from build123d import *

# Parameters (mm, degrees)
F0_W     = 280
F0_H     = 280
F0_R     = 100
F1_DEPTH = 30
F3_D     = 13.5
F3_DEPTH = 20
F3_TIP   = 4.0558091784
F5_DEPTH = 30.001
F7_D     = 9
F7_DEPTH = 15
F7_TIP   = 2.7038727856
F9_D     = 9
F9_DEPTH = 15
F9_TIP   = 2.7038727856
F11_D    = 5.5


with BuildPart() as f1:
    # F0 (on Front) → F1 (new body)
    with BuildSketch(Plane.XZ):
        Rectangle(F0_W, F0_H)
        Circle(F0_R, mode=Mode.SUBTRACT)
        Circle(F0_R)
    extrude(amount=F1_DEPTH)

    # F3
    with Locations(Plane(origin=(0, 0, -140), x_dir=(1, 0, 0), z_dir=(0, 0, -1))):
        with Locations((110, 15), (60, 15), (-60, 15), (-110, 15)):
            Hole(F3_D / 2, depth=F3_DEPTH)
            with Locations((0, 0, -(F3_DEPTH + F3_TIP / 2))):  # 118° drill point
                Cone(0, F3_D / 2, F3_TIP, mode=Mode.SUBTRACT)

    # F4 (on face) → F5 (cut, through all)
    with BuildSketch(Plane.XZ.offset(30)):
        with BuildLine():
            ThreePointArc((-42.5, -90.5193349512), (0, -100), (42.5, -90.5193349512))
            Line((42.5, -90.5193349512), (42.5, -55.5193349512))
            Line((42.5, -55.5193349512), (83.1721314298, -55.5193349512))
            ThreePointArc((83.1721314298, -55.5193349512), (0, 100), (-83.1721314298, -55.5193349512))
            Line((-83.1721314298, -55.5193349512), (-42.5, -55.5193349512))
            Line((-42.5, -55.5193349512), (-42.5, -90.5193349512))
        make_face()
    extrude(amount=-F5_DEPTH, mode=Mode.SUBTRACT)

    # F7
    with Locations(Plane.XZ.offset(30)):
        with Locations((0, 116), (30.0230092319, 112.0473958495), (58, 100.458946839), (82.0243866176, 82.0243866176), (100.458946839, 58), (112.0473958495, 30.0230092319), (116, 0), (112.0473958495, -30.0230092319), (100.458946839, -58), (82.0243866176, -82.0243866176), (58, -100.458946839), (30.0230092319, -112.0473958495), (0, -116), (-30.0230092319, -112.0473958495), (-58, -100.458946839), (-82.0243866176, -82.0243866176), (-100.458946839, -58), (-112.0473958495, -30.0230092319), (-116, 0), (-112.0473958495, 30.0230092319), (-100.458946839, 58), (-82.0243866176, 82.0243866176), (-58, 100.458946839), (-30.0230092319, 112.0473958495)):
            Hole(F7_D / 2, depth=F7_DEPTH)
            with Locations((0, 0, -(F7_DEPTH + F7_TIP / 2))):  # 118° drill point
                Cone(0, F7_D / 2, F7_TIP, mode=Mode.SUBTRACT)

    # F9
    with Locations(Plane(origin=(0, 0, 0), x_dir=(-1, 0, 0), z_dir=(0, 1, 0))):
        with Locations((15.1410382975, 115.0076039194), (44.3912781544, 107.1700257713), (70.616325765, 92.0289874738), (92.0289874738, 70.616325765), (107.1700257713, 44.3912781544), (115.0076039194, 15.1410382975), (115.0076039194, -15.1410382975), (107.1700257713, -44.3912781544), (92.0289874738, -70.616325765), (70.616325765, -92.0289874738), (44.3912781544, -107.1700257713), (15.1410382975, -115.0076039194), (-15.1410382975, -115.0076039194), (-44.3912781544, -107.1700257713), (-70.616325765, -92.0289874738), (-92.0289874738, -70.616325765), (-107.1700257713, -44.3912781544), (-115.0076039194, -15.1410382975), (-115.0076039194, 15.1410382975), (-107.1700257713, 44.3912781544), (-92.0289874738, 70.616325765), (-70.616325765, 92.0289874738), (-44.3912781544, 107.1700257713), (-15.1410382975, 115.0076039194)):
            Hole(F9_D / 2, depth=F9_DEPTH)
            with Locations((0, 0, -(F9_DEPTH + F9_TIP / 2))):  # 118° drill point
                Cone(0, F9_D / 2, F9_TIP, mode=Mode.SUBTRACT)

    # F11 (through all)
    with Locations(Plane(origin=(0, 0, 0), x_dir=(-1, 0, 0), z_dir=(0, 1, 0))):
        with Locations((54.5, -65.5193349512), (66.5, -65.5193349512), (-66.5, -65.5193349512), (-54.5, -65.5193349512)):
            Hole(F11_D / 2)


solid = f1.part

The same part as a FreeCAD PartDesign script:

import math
import FreeCAD as App
import Part
import Sketcher


def add_polygon(sketch, points):
    """Adds a closed chain of lines whose ends are joined by coincident constraints."""
    first, n = sketch.GeometryCount, len(points)
    for a, b in zip(points, points[1:] + points[:1]):
        sketch.addGeometry(Part.LineSegment(App.Vector(*a, 0), App.Vector(*b, 0)), False)
    for i in range(n):
        sketch.addConstraint(Sketcher.Constraint("Coincident", first + i, 2, first + (i + 1) % n, 1))

doc = App.newDocument("Part")
params = doc.addObject("Spreadsheet::Sheet", "Params")
for row, (alias, value) in enumerate([
    ("sketch1_width", "280 mm"),
    ("pad1_length", "30 mm"),
    ("sketch2_diameter", "13.5 mm"),
    ("hole_diameter", "13.5 mm"),
    ("hole_depth", "20 mm"),
    ("sketch3_radius", "100 mm"),
    ("sketch3_height", "35 mm"),
    ("sketch4_diameter", "9 mm"),
    ("hole2_diameter", "9 mm"),
    ("hole2_depth", "15 mm"),
    ("sketch5_diameter", "9 mm"),
    ("hole3_diameter", "9 mm"),
    ("hole3_depth", "15 mm"),
    ("sketch6_diameter", "5.5 mm"),
    ("hole4_diameter", "5.5 mm"),
], start=1):
    params.set(f"A{row}", alias)
    params.set(f"B{row}", "=" + value)
    params.setAlias(f"B{row}", alias)

body = doc.addObject("PartDesign::Body", "Body")

# Sketch on XZ plane
sketch1 = body.newObject("Sketcher::SketchObject", "Sketch")
sketch1.AttachmentSupport = (doc.getObject("XZ_Plane"), [""])
sketch1.MapMode = "FlatFace"
add_polygon(sketch1, [(-140, 140), (-140, -140), (140, -140), (140, 140)])  # lines 0-3
sketch1.addConstraint([
    Sketcher.Constraint("Vertical", 0),
    Sketcher.Constraint("Horizontal", 1),
    Sketcher.Constraint("Vertical", 2),
    Sketcher.Constraint("Horizontal", 3),
    Sketcher.Constraint("Symmetric", 0, 2, 2, 2, -1, 1),
    Sketcher.Constraint("Equal", 3, 0),
    Sketcher.Constraint("DistanceX", 1, 1, 1, 2, 280.0),
])
sketch1.setExpression("Constraints[10]", "Params.sketch1_width")
pad1 = body.newObject("PartDesign::Pad", "Pad")
pad1.Profile = sketch1
pad1.setExpression("Length", "Params.pad1_length")

# Sketch on XY plane
sketch2 = body.newObject("Sketcher::SketchObject", "Sketch001")
sketch2.AttachmentSupport = (doc.getObject("XY_Plane"), [""])
sketch2.MapMode = "FlatFace"
sketch2.AttachmentOffset = App.Placement(App.Vector(0, 0, -140), App.Rotation())
sketch2.addGeometry([
    Part.Circle(App.Vector(110, -15, 0), App.Vector(0, 0, 1), 6.75),
    Part.Circle(App.Vector(60, -15, 0), App.Vector(0, 0, 1), 6.75),
    Part.Circle(App.Vector(-60, -15, 0), App.Vector(0, 0, 1), 6.75),
    Part.Circle(App.Vector(-110, -15, 0), App.Vector(0, 0, 1), 6.75),
], False)
sketch2.addConstraint([
    Sketcher.Constraint("Equal", 0, 1),
    Sketcher.Constraint("Equal", 1, 2),
    Sketcher.Constraint("Equal", 2, 3),
    Sketcher.Constraint("Symmetric", 1, 3, 2, 3, -2),
    Sketcher.Constraint("Symmetric", 0, 3, 3, 3, -2),
    Sketcher.Constraint("Horizontal", 0, 3, 1, 3),
    Sketcher.Constraint("Diameter", 0, 13.5),
    Sketcher.Constraint("DistanceX", -1, 1, 0, 3, 110.0),
    Sketcher.Constraint("DistanceY", 0, 3, -1, 1, 15.0),
    Sketcher.Constraint("DistanceX", -1, 1, 1, 3, 60.0),
])
sketch2.setExpression("Constraints[6]", "Params.sketch2_diameter")
doc.recompute()
hole = body.newObject("PartDesign::Hole", "Hole")
hole.Profile = sketch2
hole.ThreadType = "None"
hole.setExpression("Diameter", "Params.hole_diameter")
hole.DepthType = "Dimension"
hole.setExpression("Depth", "Params.hole_depth")
hole.DrillPoint = "Angled"
hole.DrillPointAngle = 118
hole.Reversed = True

# Sketch on XZ plane
sketch3 = body.newObject("Sketcher::SketchObject", "Sketch002")
sketch3.AttachmentSupport = (doc.getObject("XZ_Plane"), [""])
sketch3.MapMode = "FlatFace"
sketch3.AttachmentOffset = App.Placement(App.Vector(0, 0, 30), App.Rotation())
sketch3.addGeometry([
    Part.ArcOfCircle(Part.Circle(App.Vector(0, 0, 0), App.Vector(0, 0, 1), 100), math.radians(-115.150663), math.radians(-64.849337)),  # 0
    Part.LineSegment(App.Vector(42.5, -90.519335, 0), App.Vector(42.5, -55.519335, 0)),  # 1
    Part.LineSegment(App.Vector(42.5, -55.519335, 0), App.Vector(83.172131, -55.519335, 0)),  # 2
    Part.ArcOfCircle(Part.Circle(App.Vector(0, 0, 0), App.Vector(0, 0, 1), 100), math.radians(-33.724033), math.radians(213.724033)),  # 3
    Part.LineSegment(App.Vector(-83.172131, -55.519335, 0), App.Vector(-42.5, -55.519335, 0)),  # 4
    Part.LineSegment(App.Vector(-42.5, -55.519335, 0), App.Vector(-42.5, -90.519335, 0)),  # 5
], False)
sketch3.addConstraint([
    Sketcher.Constraint("Coincident", 0, 2, 1, 1),
    Sketcher.Constraint("Coincident", 1, 2, 2, 1),
    Sketcher.Constraint("Coincident", 2, 2, 3, 1),
    Sketcher.Constraint("Coincident", 3, 2, 4, 1),
    Sketcher.Constraint("Coincident", 4, 2, 5, 1),
    Sketcher.Constraint("Coincident", 5, 2, 0, 1),
    Sketcher.Constraint("Vertical", 1),
    Sketcher.Constraint("Horizontal", 2),
    Sketcher.Constraint("Horizontal", 4),
    Sketcher.Constraint("Vertical", 5),
    Sketcher.Constraint("Coincident", 0, 3, -1, 1),
    Sketcher.Constraint("Coincident", 3, 3, -1, 1),
    Sketcher.Constraint("Equal", 0, 3),
    Sketcher.Constraint("Symmetric", 1, 2, 4, 2, -2),
    Sketcher.Constraint("Radius", 0, 100.0),
    Sketcher.Constraint("DistanceY", 1, 1, 1, 2, 35.0),
    Sketcher.Constraint("DistanceX", 4, 2, 1, 2, 85.0),
])
sketch3.setExpression("Constraints[14]", "Params.sketch3_radius")
sketch3.setExpression("Constraints[15]", "Params.sketch3_height")
pocket1 = body.newObject("PartDesign::Pocket", "Pocket")
pocket1.Profile = sketch3
pocket1.Type = "ThroughAll"

# Sketch on XZ plane
sketch4 = body.newObject("Sketcher::SketchObject", "Sketch003")
sketch4.AttachmentSupport = (doc.getObject("XZ_Plane"), [""])
sketch4.MapMode = "FlatFace"
sketch4.AttachmentOffset = App.Placement(App.Vector(0, 0, 30), App.Rotation())
sketch4.addGeometry([
    Part.Circle(App.Vector(0, 116, 0), App.Vector(0, 0, 1), 4.5),  # 0
    Part.Circle(App.Vector(30.023009, 112.047396, 0), App.Vector(0, 0, 1), 4.5),  # 1
    Part.Circle(App.Vector(58, 100.458947, 0), App.Vector(0, 0, 1), 4.5),  # 2
    Part.Circle(App.Vector(82.024387, 82.024387, 0), App.Vector(0, 0, 1), 4.5),  # 3
    Part.Circle(App.Vector(100.458947, 58, 0), App.Vector(0, 0, 1), 4.5),  # 4
    Part.Circle(App.Vector(112.047396, 30.023009, 0), App.Vector(0, 0, 1), 4.5),  # 5
    Part.Circle(App.Vector(116, 0, 0), App.Vector(0, 0, 1), 4.5),  # 6
    Part.Circle(App.Vector(112.047396, -30.023009, 0), App.Vector(0, 0, 1), 4.5),  # 7
    Part.Circle(App.Vector(100.458947, -58, 0), App.Vector(0, 0, 1), 4.5),  # 8
    Part.Circle(App.Vector(82.024387, -82.024387, 0), App.Vector(0, 0, 1), 4.5),  # 9
    Part.Circle(App.Vector(58, -100.458947, 0), App.Vector(0, 0, 1), 4.5),  # 10
    Part.Circle(App.Vector(30.023009, -112.047396, 0), App.Vector(0, 0, 1), 4.5),  # 11
    Part.Circle(App.Vector(0, -116, 0), App.Vector(0, 0, 1), 4.5),  # 12
    Part.Circle(App.Vector(-30.023009, -112.047396, 0), App.Vector(0, 0, 1), 4.5),  # 13
    Part.Circle(App.Vector(-58, -100.458947, 0), App.Vector(0, 0, 1), 4.5),  # 14
    Part.Circle(App.Vector(-82.024387, -82.024387, 0), App.Vector(0, 0, 1), 4.5),  # 15
    Part.Circle(App.Vector(-100.458947, -58, 0), App.Vector(0, 0, 1), 4.5),  # 16
    Part.Circle(App.Vector(-112.047396, -30.023009, 0), App.Vector(0, 0, 1), 4.5),  # 17
    Part.Circle(App.Vector(-116, 0, 0), App.Vector(0, 0, 1), 4.5),  # 18
    Part.Circle(App.Vector(-112.047396, 30.023009, 0), App.Vector(0, 0, 1), 4.5),  # 19
    Part.Circle(App.Vector(-100.458947, 58, 0), App.Vector(0, 0, 1), 4.5),  # 20
    Part.Circle(App.Vector(-82.024387, 82.024387, 0), App.Vector(0, 0, 1), 4.5),  # 21
    Part.Circle(App.Vector(-58, 100.458947, 0), App.Vector(0, 0, 1), 4.5),  # 22
    Part.Circle(App.Vector(-30.023009, 112.047396, 0), App.Vector(0, 0, 1), 4.5),  # 23
], False)
sketch4.addConstraint([
    Sketcher.Constraint("Equal", 0, 1),
    Sketcher.Constraint("Equal", 1, 2),
    Sketcher.Constraint("Equal", 2, 3),
    Sketcher.Constraint("Equal", 3, 4),
    Sketcher.Constraint("Equal", 4, 5),
    Sketcher.Constraint("Equal", 5, 6),
    Sketcher.Constraint("Equal", 6, 7),
    Sketcher.Constraint("Equal", 7, 8),
    Sketcher.Constraint("Equal", 8, 9),
    Sketcher.Constraint("Equal", 9, 10),
    Sketcher.Constraint("Equal", 10, 11),
    Sketcher.Constraint("Equal", 11, 12),
    Sketcher.Constraint("Equal", 12, 13),
    Sketcher.Constraint("Equal", 13, 14),
    Sketcher.Constraint("Equal", 14, 15),
    Sketcher.Constraint("Equal", 15, 16),
    Sketcher.Constraint("Equal", 16, 17),
    Sketcher.Constraint("Equal", 17, 18),
    Sketcher.Constraint("Equal", 18, 19),
    Sketcher.Constraint("Equal", 19, 20),
    Sketcher.Constraint("Equal", 20, 21),
    Sketcher.Constraint("Equal", 21, 22),
    Sketcher.Constraint("Equal", 22, 23),
    Sketcher.Constraint("Symmetric", 0, 3, 12, 3, -1, 1),
    Sketcher.Constraint("Symmetric", 1, 3, 13, 3, -1, 1),
    Sketcher.Constraint("Symmetric", 2, 3, 14, 3, -1, 1),
    Sketcher.Constraint("Symmetric", 3, 3, 15, 3, -1, 1),
    Sketcher.Constraint("Symmetric", 4, 3, 16, 3, -1, 1),
    Sketcher.Constraint("Symmetric", 5, 3, 17, 3, -1, 1),
    Sketcher.Constraint("Symmetric", 6, 3, 18, 3, -1, 1),
    Sketcher.Constraint("Symmetric", 7, 3, 19, 3, -1, 1),
    Sketcher.Constraint("Symmetric", 8, 3, 20, 3, -1, 1),
    Sketcher.Constraint("Symmetric", 9, 3, 21, 3, -1, 1),
    Sketcher.Constraint("Symmetric", 10, 3, 22, 3, -1, 1),
    Sketcher.Constraint("Symmetric", 11, 3, 23, 3, -1, 1),
    Sketcher.Constraint("Symmetric", 11, 3, 13, 3, -2),
    Sketcher.Constraint("Symmetric", 10, 3, 14, 3, -2),
    Sketcher.Constraint("Symmetric", 9, 3, 15, 3, -2),
    Sketcher.Constraint("Symmetric", 8, 3, 16, 3, -2),
    Sketcher.Constraint("Symmetric", 7, 3, 17, 3, -2),
    Sketcher.Constraint("PointOnObject", 0, 3, -2),
    Sketcher.Constraint("PointOnObject", 6, 3, -1),
    Sketcher.Constraint("Diameter", 0, 9.0),
    Sketcher.Constraint("DistanceY", -1, 1, 0, 3, 116.0),
    Sketcher.Constraint("DistanceX", -1, 1, 2, 3, 58.0),
    Sketcher.Constraint("DistanceY", -1, 1, 4, 3, 58.0),
    Sketcher.Constraint("DistanceX", -1, 1, 6, 3, 116.0),
    Sketcher.Constraint("DistanceX", -1, 1, 1, 3, 30.023009),
    Sketcher.Constraint("DistanceY", -1, 1, 5, 3, 30.023009),
    Sketcher.Constraint("DistanceY", 2, 3, 1, 3, 11.588449),
    Sketcher.Constraint("DistanceY", 3, 3, 2, 3, 18.43456),
    Sketcher.Constraint("DistanceX", 3, 3, 4, 3, 18.43456),
    Sketcher.Constraint("DistanceX", 4, 3, 5, 3, 11.588449),
    Sketcher.Constraint("DistanceY", -1, 1, 1, 3, 112.047396),
    Sketcher.Constraint("DistanceX", -1, 1, 3, 3, 82.024387),
])
sketch4.setExpression("Constraints[42]", "Params.sketch4_diameter")
doc.recompute()
hole2 = body.newObject("PartDesign::Hole", "Hole001")
hole2.Profile = sketch4
hole2.ThreadType = "None"
hole2.setExpression("Diameter", "Params.hole2_diameter")
hole2.DepthType = "Dimension"
hole2.setExpression("Depth", "Params.hole2_depth")
hole2.DrillPoint = "Angled"
hole2.DrillPointAngle = 118

# Sketch on XZ plane
sketch5 = body.newObject("Sketcher::SketchObject", "Sketch004")
sketch5.AttachmentSupport = (doc.getObject("XZ_Plane"), [""])
sketch5.MapMode = "FlatFace"
sketch5.addGeometry([
    Part.Circle(App.Vector(-15.141038, 115.007604, 0), App.Vector(0, 0, 1), 4.5),  # 0
    Part.Circle(App.Vector(-44.391278, 107.170026, 0), App.Vector(0, 0, 1), 4.5),  # 1
    Part.Circle(App.Vector(-70.616326, 92.028987, 0), App.Vector(0, 0, 1), 4.5),  # 2
    Part.Circle(App.Vector(-92.028987, 70.616326, 0), App.Vector(0, 0, 1), 4.5),  # 3
    Part.Circle(App.Vector(-107.170026, 44.391278, 0), App.Vector(0, 0, 1), 4.5),  # 4
    Part.Circle(App.Vector(-115.007604, 15.141038, 0), App.Vector(0, 0, 1), 4.5),  # 5
    Part.Circle(App.Vector(-115.007604, -15.141038, 0), App.Vector(0, 0, 1), 4.5),  # 6
    Part.Circle(App.Vector(-107.170026, -44.391278, 0), App.Vector(0, 0, 1), 4.5),  # 7
    Part.Circle(App.Vector(-92.028987, -70.616326, 0), App.Vector(0, 0, 1), 4.5),  # 8
    Part.Circle(App.Vector(-70.616326, -92.028987, 0), App.Vector(0, 0, 1), 4.5),  # 9
    Part.Circle(App.Vector(-44.391278, -107.170026, 0), App.Vector(0, 0, 1), 4.5),  # 10
    Part.Circle(App.Vector(-15.141038, -115.007604, 0), App.Vector(0, 0, 1), 4.5),  # 11
    Part.Circle(App.Vector(15.141038, -115.007604, 0), App.Vector(0, 0, 1), 4.5),  # 12
    Part.Circle(App.Vector(44.391278, -107.170026, 0), App.Vector(0, 0, 1), 4.5),  # 13
    Part.Circle(App.Vector(70.616326, -92.028987, 0), App.Vector(0, 0, 1), 4.5),  # 14
    Part.Circle(App.Vector(92.028987, -70.616326, 0), App.Vector(0, 0, 1), 4.5),  # 15
    Part.Circle(App.Vector(107.170026, -44.391278, 0), App.Vector(0, 0, 1), 4.5),  # 16
    Part.Circle(App.Vector(115.007604, -15.141038, 0), App.Vector(0, 0, 1), 4.5),  # 17
    Part.Circle(App.Vector(115.007604, 15.141038, 0), App.Vector(0, 0, 1), 4.5),  # 18
    Part.Circle(App.Vector(107.170026, 44.391278, 0), App.Vector(0, 0, 1), 4.5),  # 19
    Part.Circle(App.Vector(92.028987, 70.616326, 0), App.Vector(0, 0, 1), 4.5),  # 20
    Part.Circle(App.Vector(70.616326, 92.028987, 0), App.Vector(0, 0, 1), 4.5),  # 21
    Part.Circle(App.Vector(44.391278, 107.170026, 0), App.Vector(0, 0, 1), 4.5),  # 22
    Part.Circle(App.Vector(15.141038, 115.007604, 0), App.Vector(0, 0, 1), 4.5),  # 23
], False)
sketch5.addConstraint([
    Sketcher.Constraint("Equal", 0, 1),
    Sketcher.Constraint("Equal", 1, 2),
    Sketcher.Constraint("Equal", 2, 3),
    Sketcher.Constraint("Equal", 3, 4),
    Sketcher.Constraint("Equal", 4, 5),
    Sketcher.Constraint("Equal", 5, 6),
    Sketcher.Constraint("Equal", 6, 7),
    Sketcher.Constraint("Equal", 7, 8),
    Sketcher.Constraint("Equal", 8, 9),
    Sketcher.Constraint("Equal", 9, 10),
    Sketcher.Constraint("Equal", 10, 11),
    Sketcher.Constraint("Equal", 11, 12),
    Sketcher.Constraint("Equal", 12, 13),
    Sketcher.Constraint("Equal", 13, 14),
    Sketcher.Constraint("Equal", 14, 15),
    Sketcher.Constraint("Equal", 15, 16),
    Sketcher.Constraint("Equal", 16, 17),
    Sketcher.Constraint("Equal", 17, 18),
    Sketcher.Constraint("Equal", 18, 19),
    Sketcher.Constraint("Equal", 19, 20),
    Sketcher.Constraint("Equal", 20, 21),
    Sketcher.Constraint("Equal", 21, 22),
    Sketcher.Constraint("Equal", 22, 23),
    Sketcher.Constraint("Symmetric", 0, 3, 12, 3, -1, 1),
    Sketcher.Constraint("Symmetric", 1, 3, 13, 3, -1, 1),
    Sketcher.Constraint("Symmetric", 2, 3, 14, 3, -1, 1),
    Sketcher.Constraint("Symmetric", 3, 3, 15, 3, -1, 1),
    Sketcher.Constraint("Symmetric", 4, 3, 16, 3, -1, 1),
    Sketcher.Constraint("Symmetric", 5, 3, 17, 3, -1, 1),
    Sketcher.Constraint("Symmetric", 6, 3, 18, 3, -1, 1),
    Sketcher.Constraint("Symmetric", 7, 3, 19, 3, -1, 1),
    Sketcher.Constraint("Symmetric", 8, 3, 20, 3, -1, 1),
    Sketcher.Constraint("Symmetric", 9, 3, 21, 3, -1, 1),
    Sketcher.Constraint("Symmetric", 10, 3, 22, 3, -1, 1),
    Sketcher.Constraint("Symmetric", 11, 3, 23, 3, -1, 1),
    Sketcher.Constraint("Symmetric", 11, 3, 12, 3, -2),
    Sketcher.Constraint("Symmetric", 10, 3, 13, 3, -2),
    Sketcher.Constraint("Symmetric", 9, 3, 14, 3, -2),
    Sketcher.Constraint("Symmetric", 8, 3, 15, 3, -2),
    Sketcher.Constraint("Symmetric", 7, 3, 16, 3, -2),
    Sketcher.Constraint("Symmetric", 6, 3, 17, 3, -2),
    Sketcher.Constraint("Diameter", 0, 9.0),
    Sketcher.Constraint("DistanceY", 3, 3, 1, 3, 36.5537),
    Sketcher.Constraint("DistanceX", 4, 3, 2, 3, 36.5537),
    Sketcher.Constraint("DistanceX", 0, 3, -1, 1, 15.141038),
    Sketcher.Constraint("DistanceX", 1, 3, -1, 1, 44.391278),
    Sketcher.Constraint("DistanceY", -1, 1, 4, 3, 44.391278),
    Sketcher.Constraint("DistanceY", -1, 1, 5, 3, 15.141038),
    Sketcher.Constraint("DistanceY", 1, 3, 0, 3, 7.837578),
    Sketcher.Constraint("DistanceY", 2, 3, 1, 3, 15.141038),
    Sketcher.Constraint("DistanceX", 3, 3, 2, 3, 21.412662),
    Sketcher.Constraint("DistanceX", 3, 3, 1, 3, 47.637709),
    Sketcher.Constraint("DistanceY", 4, 3, 2, 3, 47.637709),
    Sketcher.Constraint("DistanceX", 5, 3, 4, 3, 7.837578),
])
sketch5.setExpression("Constraints[41]", "Params.sketch5_diameter")
doc.recompute()
hole3 = body.newObject("PartDesign::Hole", "Hole002")
hole3.Profile = sketch5
hole3.ThreadType = "None"
hole3.setExpression("Diameter", "Params.hole3_diameter")
hole3.DepthType = "Dimension"
hole3.setExpression("Depth", "Params.hole3_depth")
hole3.DrillPoint = "Angled"
hole3.DrillPointAngle = 118
hole3.Reversed = True

# Sketch on XZ plane
sketch6 = body.newObject("Sketcher::SketchObject", "Sketch005")
sketch6.AttachmentSupport = (doc.getObject("XZ_Plane"), [""])
sketch6.MapMode = "FlatFace"
sketch6.addGeometry([
    Part.Circle(App.Vector(-54.5, -65.519335, 0), App.Vector(0, 0, 1), 2.75),
    Part.Circle(App.Vector(-66.5, -65.519335, 0), App.Vector(0, 0, 1), 2.75),
    Part.Circle(App.Vector(66.5, -65.519335, 0), App.Vector(0, 0, 1), 2.75),
    Part.Circle(App.Vector(54.5, -65.519335, 0), App.Vector(0, 0, 1), 2.75),
], False)
sketch6.addConstraint([
    Sketcher.Constraint("Equal", 0, 1),
    Sketcher.Constraint("Equal", 1, 2),
    Sketcher.Constraint("Equal", 2, 3),
    Sketcher.Constraint("Symmetric", 1, 3, 2, 3, -2),
    Sketcher.Constraint("Symmetric", 0, 3, 3, 3, -2),
    Sketcher.Constraint("Horizontal", 0, 3, 1, 3),
    Sketcher.Constraint("Diameter", 0, 5.5),
    Sketcher.Constraint("DistanceX", 1, 3, 0, 3, 12.0),
    Sketcher.Constraint("DistanceX", 0, 3, 2, 3, 121.0),
    Sketcher.Constraint("DistanceY", 0, 3, -1, 1, 65.519335),
])
sketch6.setExpression("Constraints[6]", "Params.sketch6_diameter")
doc.recompute()
hole4 = body.newObject("PartDesign::Hole", "Hole003")
hole4.Profile = sketch6
hole4.ThreadType = "None"
hole4.setExpression("Diameter", "Params.hole4_diameter")
hole4.DepthType = "ThroughAll"
hole4.Reversed = True

doc.recompute()
